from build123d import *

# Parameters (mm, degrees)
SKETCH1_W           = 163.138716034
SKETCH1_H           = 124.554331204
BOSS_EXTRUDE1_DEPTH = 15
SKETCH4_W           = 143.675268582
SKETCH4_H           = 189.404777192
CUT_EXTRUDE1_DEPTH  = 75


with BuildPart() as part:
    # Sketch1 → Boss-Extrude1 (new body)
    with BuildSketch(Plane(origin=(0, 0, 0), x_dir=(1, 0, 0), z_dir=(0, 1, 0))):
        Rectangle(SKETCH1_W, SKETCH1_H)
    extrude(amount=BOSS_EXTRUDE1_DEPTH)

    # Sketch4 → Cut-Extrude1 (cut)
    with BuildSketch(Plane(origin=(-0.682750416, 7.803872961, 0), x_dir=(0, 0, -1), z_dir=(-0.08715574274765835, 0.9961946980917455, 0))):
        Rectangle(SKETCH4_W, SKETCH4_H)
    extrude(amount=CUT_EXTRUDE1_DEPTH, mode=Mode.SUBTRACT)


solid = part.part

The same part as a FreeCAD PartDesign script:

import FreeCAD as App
import Part
import Sketcher
from FreeCAD import Vector


def add_polygon(sketch, points):
    """Adds a closed chain of lines whose ends are joined by coincident constraints."""
    first, n = sketch.GeometryCount, len(points)
    for a, b in zip(points, points[1:] + points[:1]):
        sketch.addGeometry(Part.LineSegment(App.Vector(*a, 0), App.Vector(*b, 0)), False)
    for i in range(n):
        sketch.addConstraint(Sketcher.Constraint("Coincident", first + i, 2, first + (i + 1) % n, 1))

doc = App.newDocument("Part")
body = doc.addObject("PartDesign::Body", "Body")

sketch1 = body.newObject("Sketcher::SketchObject", "Sketch")
sketch1.AttachmentSupport = (doc.getObject("XZ_Plane"), [""])
sketch1.MapMode = "FlatFace"
add_polygon(sketch1, [(-81.569358, -62.277166), (-81.569358, 62.277166), (81.569358, 62.277166), (81.569358, -62.277166)])
sketch1.addConstraint(Sketcher.Constraint("Vertical", 0))
sketch1.addConstraint(Sketcher.Constraint("Horizontal", 1))
sketch1.addConstraint(Sketcher.Constraint("Vertical", 2))
sketch1.addConstraint(Sketcher.Constraint("Horizontal", 3))
sketch1.addConstraint(Sketcher.Constraint("Symmetric", 0, 2, 2, 2, -1, 1))
sketch1.addConstraint(Sketcher.Constraint("DistanceY", 0, 1, 0, 2, 124.554331))
sketch1.addConstraint(Sketcher.Constraint("DistanceX", 1, 1, 1, 2, 163.138716))
pad1 = body.newObject("PartDesign::Pad", "Pad")
pad1.Profile = sketch1
pad1.Length = 15
pad1.Reversed = True

sketch2 = body.newObject("Sketcher::SketchObject", "Sketch001")
sketch2.Placement = App.Placement(Vector(-0.68275, 7.803873, 0), App.Rotation(Vector(0, 0, -1), Vector(-0.996194698, -0.087155743, 0), Vector(-0.087155743, 0.996194698, 0), "ZXY"))
add_polygon(sketch2, [(-71.837634, 94.702389), (-71.837634, -94.702389), (71.837634, -94.702389), (71.837634, 94.702389)])
sketch2.addConstraint(Sketcher.Constraint("Vertical", 0))
sketch2.addConstraint(Sketcher.Constraint("Horizontal", 1))
sketch2.addConstraint(Sketcher.Constraint("Vertical", 2))
sketch2.addConstraint(Sketcher.Constraint("Horizontal", 3))
sketch2.addConstraint(Sketcher.Constraint("Symmetric", 0, 2, 2, 2, -1, 1))
sketch2.addConstraint(Sketcher.Constraint("DistanceX", 1, 1, 1, 2, 143.675269))
sketch2.addConstraint(Sketcher.Constraint("DistanceY", 0, 2, 0, 1, 189.404777))
pocket1 = body.newObject("PartDesign::Pocket", "Pocket")
pocket1.Profile = sketch2
pocket1.Length = 75
pocket1.Reversed = True

doc.recompute()
